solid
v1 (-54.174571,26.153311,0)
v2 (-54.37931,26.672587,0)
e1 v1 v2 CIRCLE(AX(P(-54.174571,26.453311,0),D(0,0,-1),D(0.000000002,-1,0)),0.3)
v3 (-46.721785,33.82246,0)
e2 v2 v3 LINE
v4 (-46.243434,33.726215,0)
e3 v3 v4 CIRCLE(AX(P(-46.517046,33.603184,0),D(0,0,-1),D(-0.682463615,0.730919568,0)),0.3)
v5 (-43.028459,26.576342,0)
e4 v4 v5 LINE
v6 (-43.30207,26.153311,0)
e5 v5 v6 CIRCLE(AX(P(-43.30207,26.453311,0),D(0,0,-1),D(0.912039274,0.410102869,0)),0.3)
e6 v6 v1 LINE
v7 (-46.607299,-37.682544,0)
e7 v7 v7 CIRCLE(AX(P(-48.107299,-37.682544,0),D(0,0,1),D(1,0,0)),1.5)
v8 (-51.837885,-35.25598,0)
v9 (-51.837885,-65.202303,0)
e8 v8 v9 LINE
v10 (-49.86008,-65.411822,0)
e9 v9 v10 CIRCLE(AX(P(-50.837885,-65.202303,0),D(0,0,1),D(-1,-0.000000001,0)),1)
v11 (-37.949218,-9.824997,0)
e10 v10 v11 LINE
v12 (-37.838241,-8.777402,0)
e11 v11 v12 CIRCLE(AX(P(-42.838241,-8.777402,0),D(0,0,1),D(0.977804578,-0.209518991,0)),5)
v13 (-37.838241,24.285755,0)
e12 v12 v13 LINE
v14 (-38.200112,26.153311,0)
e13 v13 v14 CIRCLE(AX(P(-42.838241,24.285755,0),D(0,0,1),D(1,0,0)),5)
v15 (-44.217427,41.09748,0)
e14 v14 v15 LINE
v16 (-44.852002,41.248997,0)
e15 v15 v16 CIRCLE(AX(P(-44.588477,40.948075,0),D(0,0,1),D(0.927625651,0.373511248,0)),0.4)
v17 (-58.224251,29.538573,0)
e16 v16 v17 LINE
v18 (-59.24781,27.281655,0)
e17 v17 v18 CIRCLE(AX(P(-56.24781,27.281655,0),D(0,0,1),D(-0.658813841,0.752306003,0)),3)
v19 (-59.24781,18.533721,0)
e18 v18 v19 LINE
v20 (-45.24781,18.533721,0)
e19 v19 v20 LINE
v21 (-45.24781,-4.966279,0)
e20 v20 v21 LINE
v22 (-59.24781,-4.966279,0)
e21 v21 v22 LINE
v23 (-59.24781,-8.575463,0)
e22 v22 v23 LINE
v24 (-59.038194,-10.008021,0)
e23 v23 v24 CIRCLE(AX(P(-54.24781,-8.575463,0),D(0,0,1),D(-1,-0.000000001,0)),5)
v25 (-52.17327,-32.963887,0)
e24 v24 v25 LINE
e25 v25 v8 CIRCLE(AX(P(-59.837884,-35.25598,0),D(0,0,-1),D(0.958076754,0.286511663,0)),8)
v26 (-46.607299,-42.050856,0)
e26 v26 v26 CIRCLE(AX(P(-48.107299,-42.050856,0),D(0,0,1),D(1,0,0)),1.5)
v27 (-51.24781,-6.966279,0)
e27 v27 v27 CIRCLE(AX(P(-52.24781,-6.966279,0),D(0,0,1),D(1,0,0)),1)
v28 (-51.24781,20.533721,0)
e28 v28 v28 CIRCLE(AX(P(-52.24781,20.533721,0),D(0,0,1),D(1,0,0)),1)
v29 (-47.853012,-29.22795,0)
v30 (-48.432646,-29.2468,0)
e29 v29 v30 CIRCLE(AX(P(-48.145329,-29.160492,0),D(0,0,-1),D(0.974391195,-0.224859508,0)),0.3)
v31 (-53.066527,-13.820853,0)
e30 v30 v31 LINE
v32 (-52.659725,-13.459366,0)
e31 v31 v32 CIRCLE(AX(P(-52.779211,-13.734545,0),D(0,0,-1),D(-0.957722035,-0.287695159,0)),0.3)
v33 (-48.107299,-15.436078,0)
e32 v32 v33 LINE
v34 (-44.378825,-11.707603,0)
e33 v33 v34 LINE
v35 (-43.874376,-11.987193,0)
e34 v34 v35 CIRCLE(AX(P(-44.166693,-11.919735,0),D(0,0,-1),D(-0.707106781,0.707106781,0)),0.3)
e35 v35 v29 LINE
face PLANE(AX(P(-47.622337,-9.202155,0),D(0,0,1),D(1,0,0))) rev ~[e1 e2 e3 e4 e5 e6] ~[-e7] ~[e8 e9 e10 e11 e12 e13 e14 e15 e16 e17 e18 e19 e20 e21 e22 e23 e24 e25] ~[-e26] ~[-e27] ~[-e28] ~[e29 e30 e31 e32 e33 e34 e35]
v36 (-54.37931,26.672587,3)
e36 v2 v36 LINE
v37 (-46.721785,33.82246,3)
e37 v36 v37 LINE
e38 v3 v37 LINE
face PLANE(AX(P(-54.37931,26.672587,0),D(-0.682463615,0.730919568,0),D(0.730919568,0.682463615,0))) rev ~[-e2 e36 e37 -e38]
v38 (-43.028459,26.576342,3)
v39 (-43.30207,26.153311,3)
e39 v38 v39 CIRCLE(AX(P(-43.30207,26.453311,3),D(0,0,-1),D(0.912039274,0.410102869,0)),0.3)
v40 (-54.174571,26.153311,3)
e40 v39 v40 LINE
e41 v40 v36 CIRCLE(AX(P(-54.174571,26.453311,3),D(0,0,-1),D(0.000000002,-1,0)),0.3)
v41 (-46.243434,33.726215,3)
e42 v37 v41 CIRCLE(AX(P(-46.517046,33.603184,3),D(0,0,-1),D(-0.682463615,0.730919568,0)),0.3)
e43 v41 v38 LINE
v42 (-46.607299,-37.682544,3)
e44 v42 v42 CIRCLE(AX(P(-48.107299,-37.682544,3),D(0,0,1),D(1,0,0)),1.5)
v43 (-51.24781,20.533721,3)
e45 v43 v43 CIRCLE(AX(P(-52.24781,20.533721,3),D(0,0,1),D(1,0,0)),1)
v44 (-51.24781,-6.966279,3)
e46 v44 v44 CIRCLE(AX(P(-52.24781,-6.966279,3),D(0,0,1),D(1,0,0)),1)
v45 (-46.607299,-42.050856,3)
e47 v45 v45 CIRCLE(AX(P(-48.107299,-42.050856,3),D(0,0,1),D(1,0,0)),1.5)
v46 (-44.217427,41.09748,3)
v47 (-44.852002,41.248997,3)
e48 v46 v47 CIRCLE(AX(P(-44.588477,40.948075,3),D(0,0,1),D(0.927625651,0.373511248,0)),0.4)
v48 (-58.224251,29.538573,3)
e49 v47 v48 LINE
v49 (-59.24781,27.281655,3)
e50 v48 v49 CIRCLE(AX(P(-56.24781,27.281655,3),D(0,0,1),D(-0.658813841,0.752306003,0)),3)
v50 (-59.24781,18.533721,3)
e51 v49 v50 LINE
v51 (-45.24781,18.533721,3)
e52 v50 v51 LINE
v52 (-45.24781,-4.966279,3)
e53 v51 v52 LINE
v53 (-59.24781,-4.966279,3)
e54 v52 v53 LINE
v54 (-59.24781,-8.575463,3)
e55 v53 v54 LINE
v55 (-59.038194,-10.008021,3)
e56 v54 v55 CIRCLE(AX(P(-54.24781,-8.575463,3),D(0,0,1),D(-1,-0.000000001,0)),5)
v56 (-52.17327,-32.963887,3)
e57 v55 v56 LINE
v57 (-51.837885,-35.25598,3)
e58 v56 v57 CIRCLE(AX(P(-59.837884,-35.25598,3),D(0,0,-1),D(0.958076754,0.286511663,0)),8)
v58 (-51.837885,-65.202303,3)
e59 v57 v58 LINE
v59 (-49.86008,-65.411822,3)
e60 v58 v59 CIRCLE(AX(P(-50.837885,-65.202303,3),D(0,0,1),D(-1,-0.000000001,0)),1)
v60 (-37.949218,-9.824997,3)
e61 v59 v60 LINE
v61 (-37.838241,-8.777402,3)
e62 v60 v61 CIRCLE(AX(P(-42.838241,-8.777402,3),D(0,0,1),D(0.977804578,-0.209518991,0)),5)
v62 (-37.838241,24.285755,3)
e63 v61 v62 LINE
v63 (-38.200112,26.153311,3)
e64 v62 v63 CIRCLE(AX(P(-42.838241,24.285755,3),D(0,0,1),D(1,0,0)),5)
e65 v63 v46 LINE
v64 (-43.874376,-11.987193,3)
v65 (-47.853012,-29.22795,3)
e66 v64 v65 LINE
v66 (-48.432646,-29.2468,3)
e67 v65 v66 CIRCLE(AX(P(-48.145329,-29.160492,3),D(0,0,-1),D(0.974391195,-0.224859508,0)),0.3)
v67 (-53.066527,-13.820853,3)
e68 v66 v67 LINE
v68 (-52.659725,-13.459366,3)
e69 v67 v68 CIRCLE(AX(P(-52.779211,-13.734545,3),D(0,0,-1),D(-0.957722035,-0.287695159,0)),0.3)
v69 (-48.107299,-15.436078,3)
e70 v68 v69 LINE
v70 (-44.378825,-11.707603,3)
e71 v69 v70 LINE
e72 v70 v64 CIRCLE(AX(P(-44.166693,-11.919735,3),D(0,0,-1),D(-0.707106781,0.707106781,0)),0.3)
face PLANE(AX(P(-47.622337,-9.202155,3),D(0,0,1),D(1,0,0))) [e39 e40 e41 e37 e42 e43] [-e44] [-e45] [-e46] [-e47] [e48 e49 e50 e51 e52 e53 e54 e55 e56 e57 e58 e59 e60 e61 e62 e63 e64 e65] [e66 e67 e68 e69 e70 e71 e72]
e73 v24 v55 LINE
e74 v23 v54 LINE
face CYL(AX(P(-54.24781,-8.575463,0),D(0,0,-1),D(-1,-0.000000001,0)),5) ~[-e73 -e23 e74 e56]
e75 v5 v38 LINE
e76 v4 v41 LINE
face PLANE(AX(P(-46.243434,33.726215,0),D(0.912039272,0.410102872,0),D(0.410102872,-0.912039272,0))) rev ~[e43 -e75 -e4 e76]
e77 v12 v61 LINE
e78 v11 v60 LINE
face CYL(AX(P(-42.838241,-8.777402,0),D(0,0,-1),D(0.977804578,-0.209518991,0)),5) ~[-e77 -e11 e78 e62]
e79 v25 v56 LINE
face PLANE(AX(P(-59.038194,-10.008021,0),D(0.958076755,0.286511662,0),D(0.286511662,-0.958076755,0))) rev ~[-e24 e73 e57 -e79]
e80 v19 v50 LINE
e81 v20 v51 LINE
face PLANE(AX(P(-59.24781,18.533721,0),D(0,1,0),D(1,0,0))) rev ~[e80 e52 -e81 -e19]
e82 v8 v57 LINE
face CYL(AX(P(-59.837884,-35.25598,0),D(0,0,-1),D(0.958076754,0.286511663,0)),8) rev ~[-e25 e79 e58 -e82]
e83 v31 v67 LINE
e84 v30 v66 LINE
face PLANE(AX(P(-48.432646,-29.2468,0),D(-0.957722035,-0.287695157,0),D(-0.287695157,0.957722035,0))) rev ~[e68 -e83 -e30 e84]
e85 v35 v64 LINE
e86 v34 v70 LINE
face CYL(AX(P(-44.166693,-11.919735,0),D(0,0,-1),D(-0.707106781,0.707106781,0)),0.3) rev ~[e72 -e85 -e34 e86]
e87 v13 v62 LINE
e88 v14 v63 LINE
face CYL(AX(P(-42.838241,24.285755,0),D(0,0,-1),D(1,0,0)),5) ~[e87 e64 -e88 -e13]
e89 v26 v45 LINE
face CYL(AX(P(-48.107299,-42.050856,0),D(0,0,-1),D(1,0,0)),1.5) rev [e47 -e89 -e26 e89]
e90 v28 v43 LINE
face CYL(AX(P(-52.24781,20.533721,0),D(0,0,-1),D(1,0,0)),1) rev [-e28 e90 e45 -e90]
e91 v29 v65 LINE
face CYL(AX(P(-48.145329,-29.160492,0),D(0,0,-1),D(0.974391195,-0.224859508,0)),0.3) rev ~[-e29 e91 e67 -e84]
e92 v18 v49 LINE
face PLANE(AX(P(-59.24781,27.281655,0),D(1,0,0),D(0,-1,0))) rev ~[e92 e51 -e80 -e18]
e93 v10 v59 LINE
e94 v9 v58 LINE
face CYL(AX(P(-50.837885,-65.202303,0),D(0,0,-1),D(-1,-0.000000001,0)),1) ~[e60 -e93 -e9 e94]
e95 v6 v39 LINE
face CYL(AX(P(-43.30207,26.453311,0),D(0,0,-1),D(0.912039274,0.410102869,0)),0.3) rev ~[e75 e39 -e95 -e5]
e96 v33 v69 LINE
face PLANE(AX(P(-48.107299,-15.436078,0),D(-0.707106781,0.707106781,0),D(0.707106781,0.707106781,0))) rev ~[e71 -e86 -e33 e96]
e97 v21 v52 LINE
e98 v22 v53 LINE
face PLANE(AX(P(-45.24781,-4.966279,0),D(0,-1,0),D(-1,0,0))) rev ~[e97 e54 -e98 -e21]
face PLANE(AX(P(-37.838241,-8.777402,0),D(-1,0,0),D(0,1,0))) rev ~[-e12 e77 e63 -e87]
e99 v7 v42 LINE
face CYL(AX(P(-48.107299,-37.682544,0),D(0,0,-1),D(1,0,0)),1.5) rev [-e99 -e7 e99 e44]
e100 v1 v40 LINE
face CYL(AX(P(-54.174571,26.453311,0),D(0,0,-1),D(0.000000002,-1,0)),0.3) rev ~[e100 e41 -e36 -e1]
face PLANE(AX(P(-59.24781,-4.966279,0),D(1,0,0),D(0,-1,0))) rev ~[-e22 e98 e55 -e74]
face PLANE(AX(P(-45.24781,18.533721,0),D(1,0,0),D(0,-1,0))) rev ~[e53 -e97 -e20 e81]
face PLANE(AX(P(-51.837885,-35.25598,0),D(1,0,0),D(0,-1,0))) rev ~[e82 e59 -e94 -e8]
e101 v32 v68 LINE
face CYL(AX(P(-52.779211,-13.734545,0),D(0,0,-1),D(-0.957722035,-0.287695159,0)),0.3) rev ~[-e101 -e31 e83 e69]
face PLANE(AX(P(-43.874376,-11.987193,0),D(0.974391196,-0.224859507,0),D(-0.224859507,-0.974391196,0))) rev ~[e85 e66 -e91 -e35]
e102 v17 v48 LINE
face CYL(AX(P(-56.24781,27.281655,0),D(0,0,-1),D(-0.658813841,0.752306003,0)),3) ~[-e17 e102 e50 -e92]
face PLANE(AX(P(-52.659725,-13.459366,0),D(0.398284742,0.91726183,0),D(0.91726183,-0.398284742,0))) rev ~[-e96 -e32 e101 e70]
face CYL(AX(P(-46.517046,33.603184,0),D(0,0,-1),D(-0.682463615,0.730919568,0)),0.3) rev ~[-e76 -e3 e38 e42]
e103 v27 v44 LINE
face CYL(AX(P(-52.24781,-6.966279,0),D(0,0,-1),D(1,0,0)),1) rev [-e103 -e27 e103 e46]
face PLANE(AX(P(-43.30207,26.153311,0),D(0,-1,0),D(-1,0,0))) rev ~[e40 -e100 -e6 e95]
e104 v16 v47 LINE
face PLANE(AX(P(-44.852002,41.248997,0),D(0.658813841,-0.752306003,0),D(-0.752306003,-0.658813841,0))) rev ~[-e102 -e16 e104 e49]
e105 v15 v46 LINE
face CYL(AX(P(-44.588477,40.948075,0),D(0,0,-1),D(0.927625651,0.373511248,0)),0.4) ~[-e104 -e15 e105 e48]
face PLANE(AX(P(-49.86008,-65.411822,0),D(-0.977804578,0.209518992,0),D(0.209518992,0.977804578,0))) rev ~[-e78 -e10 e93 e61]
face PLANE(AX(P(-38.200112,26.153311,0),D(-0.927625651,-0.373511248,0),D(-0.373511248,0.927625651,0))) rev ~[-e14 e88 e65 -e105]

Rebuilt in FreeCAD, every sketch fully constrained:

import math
import FreeCAD as App
import Part
import Sketcher

doc = App.newDocument("Part")
body = doc.addObject("PartDesign::Body", "Body")

sketch1 = body.newObject("Sketcher::SketchObject", "Sketch")
sketch1.AttachmentSupport = (doc.getObject("XY_Plane"), [""])
sketch1.MapMode = "FlatFace"
sketch1.addGeometry(Part.LineSegment(App.Vector(-59.24781, 18.533721, 0), App.Vector(-45.24781, 18.533721, 0)), False)
sketch1.addGeometry(Part.LineSegment(App.Vector(-45.24781, 18.533721, 0), App.Vector(-45.24781, -4.966279, 0)), False)
sketch1.addGeometry(Part.LineSegment(App.Vector(-45.24781, -4.966279, 0), App.Vector(-59.24781, -4.966279, 0)), False)
sketch1.addGeometry(Part.LineSegment(App.Vector(-59.24781, -4.966279, 0), App.Vector(-59.24781, -8.575463, 0)), False)
sketch1.addGeometry(Part.ArcOfCircle(Part.Circle(App.Vector(-54.24781, -8.575463, 0), App.Vector(0, 0, 1), 5), math.radians(-180), math.radians(-163.350771)), False)
sketch1.addGeometry(Part.LineSegment(App.Vector(-59.038194, -10.008021, 0), App.Vector(-52.17327, -32.963887, 0)), False)
sketch1.addGeometry(Part.ArcOfCircle(Part.Circle(App.Vector(-59.837884, -35.25598, 0), App.Vector(0, 0, 1), 8), math.radians(0), math.radians(16.649229)), False)
sketch1.addGeometry(Part.LineSegment(App.Vector(-51.837885, -35.25598, 0), App.Vector(-51.837885, -65.202303, 0)), False)
sketch1.addGeometry(Part.ArcOfCircle(Part.Circle(App.Vector(-50.837885, -65.202303, 0), App.Vector(0, 0, 1), 1), math.radians(-180), math.radians(-12.094165)), False)
sketch1.addGeometry(Part.LineSegment(App.Vector(-49.86008, -65.411822, 0), App.Vector(-37.949218, -9.824997, 0)), False)
sketch1.addGeometry(Part.ArcOfCircle(Part.Circle(App.Vector(-42.838241, -8.777402, 0), App.Vector(0, 0, 1), 5), math.radians(-12.094165), math.radians(0)), False)
sketch1.addGeometry(Part.LineSegment(App.Vector(-37.838241, -8.777402, 0), App.Vector(-37.838241, 24.285755, 0)), False)
sketch1.addGeometry(Part.ArcOfCircle(Part.Circle(App.Vector(-42.838241, 24.285755, 0), App.Vector(0, 0, 1), 5), math.radians(0), math.radians(21.932329)), False)
sketch1.addGeometry(Part.LineSegment(App.Vector(-38.200112, 26.153311, 0), App.Vector(-44.217427, 41.09748, 0)), False)
sketch1.addGeometry(Part.ArcOfCircle(Part.Circle(App.Vector(-44.588477, 40.948075, 0), App.Vector(0, 0, 1), 0.4), math.radians(21.932329), math.radians(131.209472)), False)
sketch1.addGeometry(Part.LineSegment(App.Vector(-44.852002, 41.248997, 0), App.Vector(-58.224251, 29.538573, 0)), False)
sketch1.addGeometry(Part.ArcOfCircle(Part.Circle(App.Vector(-56.24781, 27.281655, 0), App.Vector(0, 0, 1), 3), math.radians(131.209472), math.radians(180)), False)
sketch1.addGeometry(Part.LineSegment(App.Vector(-59.24781, 27.281655, 0), App.Vector(-59.24781, 18.533721, 0)), False)
sketch1.addGeometry(Part.Circle(App.Vector(-52.24781, -6.966279, 0), App.Vector(0, 0, 1), 1), False)
sketch1.addGeometry(Part.Circle(App.Vector(-48.107299, -42.050856, 0), App.Vector(0, 0, 1), 1.5), False)
sketch1.addGeometry(Part.Circle(App.Vector(-48.107299, -37.682544, 0), App.Vector(0, 0, 1), 1.5), False)
sketch1.addGeometry(Part.LineSegment(App.Vector(-52.659725, -13.459366, 0), App.Vector(-48.107299, -15.436078, 0)), False)
sketch1.addGeometry(Part.LineSegment(App.Vector(-48.107299, -15.436078, 0), App.Vector(-44.378825, -11.707603, 0)), False)
sketch1.addGeometry(Part.ArcOfCircle(Part.Circle(App.Vector(-44.166693, -11.919735, 0), App.Vector(0, 0, 1), 0.3), math.radians(-12.994617), math.radians(135)), False)
sketch1.addGeometry(Part.LineSegment(App.Vector(-43.874376, -11.987193, 0), App.Vector(-47.853012, -29.22795, 0)), False)
sketch1.addGeometry(Part.ArcOfCircle(Part.Circle(App.Vector(-48.145329, -29.160492, 0), App.Vector(0, 0, 1), 0.3), math.radians(-163.279981), math.radians(-12.994617)), False)
sketch1.addGeometry(Part.LineSegment(App.Vector(-48.432646, -29.2468, 0), App.Vector(-53.066527, -13.820853, 0)), False)
sketch1.addGeometry(Part.ArcOfCircle(Part.Circle(App.Vector(-52.779211, -13.734545, 0), App.Vector(0, 0, 1), 0.3), math.radians(66.529007), math.radians(196.720019)), False)
sketch1.addGeometry(Part.Circle(App.Vector(-52.24781, 20.533721, 0), App.Vector(0, 0, 1), 1), False)
sketch1.addGeometry(Part.ArcOfCircle(Part.Circle(App.Vector(-46.517046, 33.603184, 0), App.Vector(0, 0, 1), 0.3), math.radians(24.211297), math.radians(133.03646)), False)
sketch1.addGeometry(Part.LineSegment(App.Vector(-46.243434, 33.726215, 0), App.Vector(-43.028459, 26.576342, 0)), False)
sketch1.addGeometry(Part.ArcOfCircle(Part.Circle(App.Vector(-43.30207, 26.453311, 0), App.Vector(0, 0, 1), 0.3), math.radians(-90), math.radians(24.211297)), False)
sketch1.addGeometry(Part.LineSegment(App.Vector(-43.30207, 26.153311, 0), App.Vector(-54.174571, 26.153311, 0)), False)
sketch1.addGeometry(Part.ArcOfCircle(Part.Circle(App.Vector(-54.174571, 26.453311, 0), App.Vector(0, 0, 1), 0.3), math.radians(133.03646), math.radians(270)), False)
sketch1.addGeometry(Part.LineSegment(App.Vector(-54.37931, 26.672587, 0), App.Vector(-46.721785, 33.82246, 0)), False)
sketch1.addConstraint(Sketcher.Constraint("Coincident", 0, 2, 1, 1))
sketch1.addConstraint(Sketcher.Constraint("Coincident", 1, 2, 2, 1))
sketch1.addConstraint(Sketcher.Constraint("Coincident", 2, 2, 3, 1))
sketch1.addConstraint(Sketcher.Constraint("Coincident", 3, 2, 4, 1))
sketch1.addConstraint(Sketcher.Constraint("Coincident", 4, 2, 5, 1))
sketch1.addConstraint(Sketcher.Constraint("Coincident", 5, 2, 6, 2))
sketch1.addConstraint(Sketcher.Constraint("Coincident", 6, 1, 7, 1))
sketch1.addConstraint(Sketcher.Constraint("Coincident", 7, 2, 8, 1))
sketch1.addConstraint(Sketcher.Constraint("Coincident", 8, 2, 9, 1))
sketch1.addConstraint(Sketcher.Constraint("Coincident", 9, 2, 10, 1))
sketch1.addConstraint(Sketcher.Constraint("Coincident", 10, 2, 11, 1))
sketch1.addConstraint(Sketcher.Constraint("Coincident", 11, 2, 12, 1))
sketch1.addConstraint(Sketcher.Constraint("Coincident", 12, 2, 13, 1))
sketch1.addConstraint(Sketcher.Constraint("Coincident", 13, 2, 14, 1))
sketch1.addConstraint(Sketcher.Constraint("Coincident", 14, 2, 15, 1))
sketch1.addConstraint(Sketcher.Constraint("Coincident", 15, 2, 16, 1))
sketch1.addConstraint(Sketcher.Constraint("Coincident", 16, 2, 17, 1))
sketch1.addConstraint(Sketcher.Constraint("Coincident", 17, 2, 0, 1))
sketch1.addConstraint(Sketcher.Constraint("Coincident", 21, 2, 22, 1))
sketch1.addConstraint(Sketcher.Constraint("Coincident", 22, 2, 23, 2))
sketch1.addConstraint(Sketcher.Constraint("Coincident", 23, 1, 24, 1))
sketch1.addConstraint(Sketcher.Constraint("Coincident", 24, 2, 25, 2))
sketch1.addConstraint(Sketcher.Constraint("Coincident", 25, 1, 26, 1))
sketch1.addConstraint(Sketcher.Constraint("Coincident", 26, 2, 27, 2))
sketch1.addConstraint(Sketcher.Constraint("Coincident", 27, 1, 21, 1))
sketch1.addConstraint(Sketcher.Constraint("Coincident", 29, 1, 30, 1))
sketch1.addConstraint(Sketcher.Constraint("Coincident", 30, 2, 31, 2))
sketch1.addConstraint(Sketcher.Constraint("Coincident", 31, 1, 32, 1))
sketch1.addConstraint(Sketcher.Constraint("Coincident", 32, 2, 33, 2))
sketch1.addConstraint(Sketcher.Constraint("Coincident", 33, 1, 34, 1))
sketch1.addConstraint(Sketcher.Constraint("Coincident", 34, 2, 29, 2))
sketch1.addConstraint(Sketcher.Constraint("Horizontal", 0))
sketch1.addConstraint(Sketcher.Constraint("Vertical", 1))
sketch1.addConstraint(Sketcher.Constraint("Horizontal", 2))
sketch1.addConstraint(Sketcher.Constraint("Vertical", 3))
sketch1.addConstraint(Sketcher.Constraint("Vertical", 7))
sketch1.addConstraint(Sketcher.Constraint("Vertical", 11))
sketch1.addConstraint(Sketcher.Constraint("Vertical", 17))
sketch1.addConstraint(Sketcher.Constraint("Horizontal", 32))
sketch1.addConstraint(Sketcher.Constraint("Diameter", 18, 2.0))
sketch1.addConstraint(Sketcher.Constraint("Diameter", 19, 3.0))
sketch1.addConstraint(Sketcher.Constraint("Diameter", 20, 3.0))
sketch1.addConstraint(Sketcher.Constraint("Diameter", 28, 2.0))
sketch1.addConstraint(Sketcher.Constraint("Radius", 4, 5.0))
sketch1.addConstraint(Sketcher.Constraint("Radius", 6, 8.0))
sketch1.addConstraint(Sketcher.Constraint("Radius", 8, 1.0))
sketch1.addConstraint(Sketcher.Constraint("Radius", 10, 5.0))
sketch1.addConstraint(Sketcher.Constraint("Radius", 12, 5.0))
sketch1.addConstraint(Sketcher.Constraint("Radius", 16, 3.0))
sketch1.addConstraint(Sketcher.Constraint("Radius", 14, 0.4))
sketch1.addConstraint(Sketcher.Constraint("Radius", 23, 0.3))
sketch1.addConstraint(Sketcher.Constraint("Radius", 25, 0.3))
sketch1.addConstraint(Sketcher.Constraint("Radius", 27, 0.3))
sketch1.addConstraint(Sketcher.Constraint("Radius", 29, 0.3))
sketch1.addConstraint(Sketcher.Constraint("Radius", 31, 0.3))
sketch1.addConstraint(Sketcher.Constraint("Radius", 33, 0.3))
sketch1.addConstraint(Sketcher.Constraint("DistanceX", 0, 1, 0, 2, 14.0))
sketch1.addConstraint(Sketcher.Constraint("DistanceX", 2, 2, 2, 1, 14.0))
sketch1.addConstraint(Sketcher.Constraint("DistanceY", 1, 2, 1, 1, 23.5))
sketch1.addConstraint(Sketcher.Constraint("DistanceX", 4, 3, 18, 3, 2.0))
sketch1.addConstraint(Sketcher.Constraint("DistanceX", 16, 3, 28, 3, 4.0))
sketch1.addConstraint(Sketcher.Constraint("DistanceY", 0, 2, 28, 3, 2.0))
sketch1.addConstraint(Sketcher.Constraint("DistanceY", 18, 3, 1, 2, 2.0))
sketch1.addConstraint(Sketcher.Constraint("DistanceY", 12, 2, 31, 3, 0.3))
sketch1.addConstraint(Sketcher.Constraint("DistanceX", 32, 2, 32, 1, 10.872501))
sketch1.addConstraint(Sketcher.Constraint("DistanceX", 19, 3, -1, 1, 48.107299))
sketch1.addConstraint(Sketcher.Constraint("DistanceX", 20, 3, -1, 1, 48.107299))
sketch1.addConstraint(Sketcher.Constraint("DistanceX", 21, 2, -1, 1, 48.107299))
sketch1.addConstraint(Sketcher.Constraint("DistanceY", 25, 1, -1, 1, 29.2468))
sketch1.addConstraint(Sketcher.Constraint("DistanceY", 8, 3, 10, 3, 56.424901))
sketch1.addConstraint(Sketcher.Constraint("DistanceY", 12, 3, 16, 3, 2.9959))
sketch1.addConstraint(Sketcher.Constraint("DistanceY", 6, 3, 18, 3, 28.289701))
sketch1.addConstraint(Sketcher.Constraint("DistanceX", 4, 3, 27, 3, 1.468599))
sketch1.addConstraint(Sketcher.Constraint("DistanceX", 33, 3, 31, 3, 10.872501))
sketch1.addConstraint(Sketcher.Constraint("DistanceY", 21, 2, 18, 3, 8.469798))
sketch1.addConstraint(Sketcher.Constraint("DistanceY", 22, 2, 10, 3, 2.930201))
sketch1.addConstraint(Sketcher.Constraint("DistanceX", 16, 3, 33, 1, 1.8685))
sketch1.addConstraint(Sketcher.Constraint("Distance", 5, 23.960362))
sketch1.addConstraint(Sketcher.Constraint("Distance", 13, 16.110129))
sketch1.addConstraint(Sketcher.Constraint("Distance", 21, 4.96306))
sketch1.addConstraint(Sketcher.Constraint("Distance", 22, 5.272859))
sketch1.addConstraint(Sketcher.Constraint("DistanceY", 3, 2, 3, 1, 3.609183))
sketch1.addConstraint(Sketcher.Constraint("DistanceY", 7, 2, 7, 1, 29.946323))
sketch1.addConstraint(Sketcher.Constraint("DistanceY", 11, 1, 11, 2, 33.063157))
sketch1.addConstraint(Sketcher.Constraint("DistanceY", 17, 2, 17, 1, 8.747934))
sketch1.addConstraint(Sketcher.Constraint("DistanceX", 4, 3, -1, 1, 54.24781))
sketch1.addConstraint(Sketcher.Constraint("DistanceY", 6, 3, -1, 1, 35.25598))
sketch1.addConstraint(Sketcher.Constraint("DistanceX", 10, 3, -1, 1, 42.838241))
sketch1.addConstraint(Sketcher.Constraint("DistanceX", 25, 3, -1, 1, 48.145329))
sketch1.addConstraint(Sketcher.Constraint("DistanceY", 25, 3, -1, 1, 29.160492))
sketch1.addConstraint(Sketcher.Constraint("DistanceX", 31, 3, -1, 1, 43.30207))
sketch1.addConstraint(Sketcher.Constraint("DistanceY", -1, 1, 31, 3, 26.453311))
sketch1.addConstraint(Sketcher.Constraint("DistanceY", 4, 2, -1, 1, 10.008021))
sketch1.addConstraint(Sketcher.Constraint("DistanceX", 5, 2, -1, 1, 52.17327))
sketch1.addConstraint(Sketcher.Constraint("DistanceY", 6, 1, -1, 1, 35.25598))
sketch1.addConstraint(Sketcher.Constraint("DistanceX", 8, 2, -1, 1, 49.86008))
sketch1.addConstraint(Sketcher.Constraint("DistanceY", -1, 1, 13, 2, 41.09748))
sketch1.addConstraint(Sketcher.Constraint("DistanceX", 15, 2, -1, 1, 58.224251))
sketch1.addConstraint(Sketcher.Constraint("DistanceX", 24, 2, -1, 1, 47.853012))
sketch1.addConstraint(Sketcher.Constraint("DistanceX", 30, 2, -1, 1, 43.028459))
sketch1.addConstraint(Sketcher.Constraint("DistanceX", 31, 1, -1, 1, 43.30207))
sketch1.addConstraint(Sketcher.Constraint("DistanceY", -1, 1, 34, 2, 33.82246))
sketch1.addConstraint(Sketcher.Constraint("DistanceY", 8, 3, 4, 3, 56.62684))
sketch1.addConstraint(Sketcher.Constraint("DistanceY", 12, 3, 14, 3, 16.66232))
sketch1.addConstraint(Sketcher.Constraint("DistanceY", 8, 3, 14, 3, 106.150378))
sketch1.addConstraint(Sketcher.Constraint("DistanceY", 8, 3, 20, 3, 27.519759))
sketch1.addConstraint(Sketcher.Constraint("DistanceY", 20, 3, 23, 3, 25.762808))
sketch1.addConstraint(Sketcher.Constraint("DistanceX", 6, 3, 23, 3, 15.671191))
sketch1.addConstraint(Sketcher.Constraint("DistanceY", 27, 3, 23, 3, 1.814809))
sketch1.addConstraint(Sketcher.Constraint("DistanceX", 29, 3, 14, 3, 1.928569))
sketch1.addConstraint(Sketcher.Constraint("DistanceY", 29, 3, 14, 3, 7.344891))
sketch1.addConstraint(Sketcher.Constraint("DistanceY", 19, 3, 5, 2, 9.086969))
sketch1.addConstraint(Sketcher.Constraint("DistanceY", 23, 3, 9, 2, 2.094738))
sketch1.addConstraint(Sketcher.Constraint("DistanceY", 11, 2, 29, 3, 9.31743))
sketch1.addConstraint(Sketcher.Constraint("DistanceX", 14, 2, 12, 2, 6.65189))
sketch1.addConstraint(Sketcher.Constraint("DistanceX", 22, 2, 23, 1, 0.504449))
sketch1.addConstraint(Sketcher.Constraint("DistanceY", 26, 2, 27, 3, 0.086309))
sketch1.addConstraint(Sketcher.Constraint("DistanceX", 29, 3, 29, 1, 0.273612))
pad1 = body.newObject("PartDesign::Pad", "Pad")
pad1.Profile = sketch1
pad1.Length = 3

doc.recompute()
